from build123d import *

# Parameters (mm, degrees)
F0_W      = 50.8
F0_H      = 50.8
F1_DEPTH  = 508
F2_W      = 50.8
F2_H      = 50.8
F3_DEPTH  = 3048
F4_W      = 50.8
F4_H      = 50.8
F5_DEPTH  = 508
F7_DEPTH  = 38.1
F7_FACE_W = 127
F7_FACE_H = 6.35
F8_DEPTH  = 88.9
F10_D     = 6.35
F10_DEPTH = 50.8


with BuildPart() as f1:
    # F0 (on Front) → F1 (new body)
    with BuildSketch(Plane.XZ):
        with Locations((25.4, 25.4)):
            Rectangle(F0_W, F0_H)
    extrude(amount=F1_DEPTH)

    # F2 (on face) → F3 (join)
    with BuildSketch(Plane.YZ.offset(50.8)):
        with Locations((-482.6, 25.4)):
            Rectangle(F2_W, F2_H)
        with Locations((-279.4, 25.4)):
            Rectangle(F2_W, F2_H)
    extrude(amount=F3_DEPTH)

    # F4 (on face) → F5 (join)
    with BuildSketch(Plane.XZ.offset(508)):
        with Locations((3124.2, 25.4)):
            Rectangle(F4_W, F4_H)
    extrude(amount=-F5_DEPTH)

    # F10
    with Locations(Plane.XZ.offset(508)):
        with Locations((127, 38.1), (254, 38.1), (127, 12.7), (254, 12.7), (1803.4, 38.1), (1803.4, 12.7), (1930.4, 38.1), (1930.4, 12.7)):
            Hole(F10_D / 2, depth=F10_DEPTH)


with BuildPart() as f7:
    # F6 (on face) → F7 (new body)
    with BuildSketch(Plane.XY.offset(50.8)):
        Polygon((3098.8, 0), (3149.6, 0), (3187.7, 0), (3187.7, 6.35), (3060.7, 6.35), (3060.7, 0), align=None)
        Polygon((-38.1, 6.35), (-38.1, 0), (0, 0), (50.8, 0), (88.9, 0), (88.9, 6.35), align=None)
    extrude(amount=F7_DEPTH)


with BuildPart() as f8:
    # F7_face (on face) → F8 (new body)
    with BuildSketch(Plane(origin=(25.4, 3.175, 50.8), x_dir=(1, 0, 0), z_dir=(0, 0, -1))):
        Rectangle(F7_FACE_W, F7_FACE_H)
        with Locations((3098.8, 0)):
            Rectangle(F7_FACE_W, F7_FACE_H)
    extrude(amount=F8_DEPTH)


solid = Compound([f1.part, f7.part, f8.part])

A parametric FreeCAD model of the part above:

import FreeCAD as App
import Part
import Sketcher
Q = App.Units.Quantity


def add_polygon(sketch, points):
    """Adds a closed chain of lines whose ends are joined by coincident constraints."""
    first, n = sketch.GeometryCount, len(points)
    for a, b in zip(points, points[1:] + points[:1]):
        sketch.addGeometry(Part.LineSegment(App.Vector(*a, 0), App.Vector(*b, 0)), False)
    for i in range(n):
        sketch.addConstraint(Sketcher.Constraint("Coincident", first + i, 2, first + (i + 1) % n, 1))

doc = App.newDocument("Part")
body = doc.addObject("PartDesign::Body", "Body")

# Sketch on XZ plane
sketch1 = body.newObject("Sketcher::SketchObject", "Sketch")
sketch1.AttachmentSupport = (doc.getObject("XZ_Plane"), [""])
sketch1.MapMode = "FlatFace"
add_polygon(sketch1, [(0, 50.8), (0, 0), (50.8, 0), (50.8, 50.8)])  # lines 0-3
sketch1.addConstraint(Sketcher.Constraint("Vertical", 0))
sketch1.addConstraint(Sketcher.Constraint("Horizontal", 1))
sketch1.addConstraint(Sketcher.Constraint("Vertical", 2))
sketch1.addConstraint(Sketcher.Constraint("Horizontal", 3))
sketch1.addConstraint(Sketcher.Constraint("Coincident", 0, 2, -1, 1))
sketch1.addConstraint(Sketcher.Constraint("Equal", 3, 0))
sketch1.addConstraint(Sketcher.Constraint("DistanceX", 1, 1, 1, 2, Q("2 in")))
pad1 = body.newObject("PartDesign::Pad", "Pad")
pad1.Profile = sketch1
pad1.Length = Q("20 in")

# Sketch on YZ plane
sketch2 = body.newObject("Sketcher::SketchObject", "Sketch001")
sketch2.AttachmentSupport = (doc.getObject("YZ_Plane"), [""])
sketch2.MapMode = "FlatFace"
sketch2.AttachmentOffset = App.Placement(App.Vector(0, 0, 2 * 25.4), App.Rotation())
add_polygon(sketch2, [(-508, 50.8), (-508, 0), (-457.2, 0), (-457.2, 50.8)])  # lines 0-3
add_polygon(sketch2, [(-304.8, 50.8), (-304.8, 0), (-254, 0), (-254, 50.8)])  # lines 4-7
sketch2.addConstraint(Sketcher.Constraint("Vertical", 0))
sketch2.addConstraint(Sketcher.Constraint("Horizontal", 1))
sketch2.addConstraint(Sketcher.Constraint("Vertical", 2))
sketch2.addConstraint(Sketcher.Constraint("Horizontal", 3))
sketch2.addConstraint(Sketcher.Constraint("Vertical", 4))
sketch2.addConstraint(Sketcher.Constraint("Horizontal", 5))
sketch2.addConstraint(Sketcher.Constraint("Vertical", 6))
sketch2.addConstraint(Sketcher.Constraint("Horizontal", 7))
sketch2.addConstraint(Sketcher.Constraint("PointOnObject", 0, 2, -1))
sketch2.addConstraint(Sketcher.Constraint("PointOnObject", 4, 2, -1))
sketch2.addConstraint(Sketcher.Constraint("Horizontal", 3, 2, 6, 2))
sketch2.addConstraint(Sketcher.Constraint("Equal", 3, 5))
sketch2.addConstraint(Sketcher.Constraint("Equal", 7, 0))
sketch2.addConstraint(Sketcher.Constraint("DistanceX", 1, 1, 1, 2, Q("2 in")))
sketch2.addConstraint(Sketcher.Constraint("DistanceX", 0, 2, -1, 1, Q("20 in")))
sketch2.addConstraint(Sketcher.Constraint("DistanceX", 4, 2, -1, 1, Q("12 in")))
pad2 = body.newObject("PartDesign::Pad", "Pad001")
pad2.Profile = sketch2
pad2.Length = Q("120 in")

# Sketch on XZ plane
sketch3 = body.newObject("Sketcher::SketchObject", "Sketch002")
sketch3.AttachmentSupport = (doc.getObject("XZ_Plane"), [""])
sketch3.MapMode = "FlatFace"
sketch3.AttachmentOffset = App.Placement(App.Vector(0, 0, 20 * 25.4), App.Rotation())
add_polygon(sketch3, [(3098.8, 50.8), (3098.8, 0), (3149.6, 0), (3149.6, 50.8)])  # lines 0-3
sketch3.addConstraint(Sketcher.Constraint("Vertical", 0))
sketch3.addConstraint(Sketcher.Constraint("Horizontal", 1))
sketch3.addConstraint(Sketcher.Constraint("Vertical", 2))
sketch3.addConstraint(Sketcher.Constraint("Horizontal", 3))
sketch3.addConstraint(Sketcher.Constraint("PointOnObject", 0, 2, -1))
sketch3.addConstraint(Sketcher.Constraint("Equal", 3, 0))
sketch3.addConstraint(Sketcher.Constraint("DistanceX", 1, 1, 1, 2, Q("2 in")))
sketch3.addConstraint(Sketcher.Constraint("DistanceX", -1, 1, 0, 2, Q("122 in")))
pad3 = body.newObject("PartDesign::Pad", "Pad002")
pad3.Profile = sketch3
pad3.Length = Q("20 in")
pad3.Reversed = True

# Sketch on XZ plane
sketch4 = body.newObject("Sketcher::SketchObject", "Sketch003")
sketch4.AttachmentSupport = (doc.getObject("XZ_Plane"), [""])
sketch4.MapMode = "FlatFace"
sketch4.AttachmentOffset = App.Placement(App.Vector(0, 0, 20 * 25.4), App.Rotation())
sketch4.addGeometry(Part.Circle(App.Vector(127, 38.1, 0), App.Vector(0, 0, 1), 3.175), False)
sketch4.addGeometry(Part.Circle(App.Vector(254, 38.1, 0), App.Vector(0, 0, 1), 3.175), False)
sketch4.addGeometry(Part.Circle(App.Vector(127, 12.7, 0), App.Vector(0, 0, 1), 3.175), False)
sketch4.addGeometry(Part.Circle(App.Vector(254, 12.7, 0), App.Vector(0, 0, 1), 3.175), False)
sketch4.addGeometry(Part.Circle(App.Vector(1803.4, 38.1, 0), App.Vector(0, 0, 1), 3.175), False)
sketch4.addGeometry(Part.Circle(App.Vector(1803.4, 12.7, 0), App.Vector(0, 0, 1), 3.175), False)
sketch4.addGeometry(Part.Circle(App.Vector(1930.4, 38.1, 0), App.Vector(0, 0, 1), 3.175), False)
sketch4.addGeometry(Part.Circle(App.Vector(1930.4, 12.7, 0), App.Vector(0, 0, 1), 3.175), False)
sketch4.addConstraint(Sketcher.Constraint("Equal", 0, 1))
sketch4.addConstraint(Sketcher.Constraint("Equal", 1, 2))
sketch4.addConstraint(Sketcher.Constraint("Equal", 2, 3))
sketch4.addConstraint(Sketcher.Constraint("Equal", 3, 4))
sketch4.addConstraint(Sketcher.Constraint("Equal", 4, 5))
sketch4.addConstraint(Sketcher.Constraint("Equal", 5, 6))
sketch4.addConstraint(Sketcher.Constraint("Equal", 6, 7))
sketch4.addConstraint(Sketcher.Constraint("Horizontal", 0, 3, 1, 3))
sketch4.addConstraint(Sketcher.Constraint("Horizontal", 2, 3, 3, 3))
sketch4.addConstraint(Sketcher.Constraint("Horizontal", 1, 3, 4, 3))
sketch4.addConstraint(Sketcher.Constraint("Horizontal", 3, 3, 5, 3))
sketch4.addConstraint(Sketcher.Constraint("Horizontal", 4, 3, 6, 3))
sketch4.addConstraint(Sketcher.Constraint("Horizontal", 5, 3, 7, 3))
sketch4.addConstraint(Sketcher.Constraint("Vertical", 0, 3, 2, 3))
sketch4.addConstraint(Sketcher.Constraint("Vertical", 1, 3, 3, 3))
sketch4.addConstraint(Sketcher.Constraint("Vertical", 4, 3, 5, 3))
sketch4.addConstraint(Sketcher.Constraint("Vertical", 6, 3, 7, 3))
sketch4.addConstraint(Sketcher.Constraint("Diameter", 0, Q("0.25 in")))
sketch4.addConstraint(Sketcher.Constraint("DistanceX", -1, 1, 0, 3, Q("5 in")))
sketch4.addConstraint(Sketcher.Constraint("DistanceX", -1, 1, 1, 3, Q("10 in")))
sketch4.addConstraint(Sketcher.Constraint("DistanceX", -1, 1, 4, 3, Q("71 in")))
sketch4.addConstraint(Sketcher.Constraint("DistanceX", -1, 1, 6, 3, Q("76 in")))
sketch4.addConstraint(Sketcher.Constraint("DistanceY", 2, 3, 0, 3, Q("1 in")))
sketch4.addConstraint(Sketcher.Constraint("DistanceY", -1, 1, 0, 3, Q("1.5 in")))
doc.recompute()
hole = body.newObject("PartDesign::Hole", "Hole")
hole.Profile = sketch4
hole.ThreadType = "None"
hole.Diameter = Q("0.25 in")
hole.DepthType = "Dimension"
hole.Depth = Q("2 in")
hole.DrillPoint = "Flat"
body2 = doc.addObject("PartDesign::Body", "Body001")
body2.AllowCompound = True

# Sketch on XY plane
sketch5 = body2.newObject("Sketcher::SketchObject", "Sketch004")
sketch5.AttachmentSupport = (doc.getObject("XY_Plane001"), [""])
sketch5.MapMode = "FlatFace"
sketch5.AttachmentOffset = App.Placement(App.Vector(0, 0, 2 * 25.4), App.Rotation())
add_polygon(sketch5, [(3187.7, 0), (3187.7, 6.35), (3060.7, 6.35), (3060.7, 0)])  # lines 0-3
add_polygon(sketch5, [(-38.1, 6.35), (-38.1, 0), (88.9, 0), (88.9, 6.35)])  # lines 4-7
sketch5.addConstraint(Sketcher.Constraint("Vertical", 0))
sketch5.addConstraint(Sketcher.Constraint("Horizontal", 1))
sketch5.addConstraint(Sketcher.Constraint("Vertical", 2))
sketch5.addConstraint(Sketcher.Constraint("Horizontal", 3))
sketch5.addConstraint(Sketcher.Constraint("Vertical", 4))
sketch5.addConstraint(Sketcher.Constraint("Horizontal", 5))
sketch5.addConstraint(Sketcher.Constraint("Vertical", 6))
sketch5.addConstraint(Sketcher.Constraint("Horizontal", 7))
sketch5.addConstraint(Sketcher.Constraint("PointOnObject", 2, 2, -1))
sketch5.addConstraint(Sketcher.Constraint("PointOnObject", 4, 2, -1))
sketch5.addConstraint(Sketcher.Constraint("Horizontal", 1, 2, 6, 2))
sketch5.addConstraint(Sketcher.Constraint("Equal", 3, 5))
sketch5.addConstraint(Sketcher.Constraint("DistanceX", 1, 2, 1, 1, Q("5 in")))
sketch5.addConstraint(Sketcher.Constraint("DistanceX", 4, 2, 2, 2, Q("122 in")))
sketch5.addConstraint(Sketcher.Constraint("DistanceY", 0, 1, 0, 2, Q("0.25 in")))
sketch5.addConstraint(Sketcher.Constraint("DistanceX", -1, 1, 0, 2, Q("125.5 in")))
pad4 = body2.newObject("PartDesign::Pad", "Pad003")
pad4.Profile = sketch5
pad4.Length = Q("1.5 in")
body3 = doc.addObject("PartDesign::Body", "Body002")
body3.AllowCompound = True

# Sketch on XY plane
sketch6 = body3.newObject("Sketcher::SketchObject", "Sketch005")
sketch6.AttachmentSupport = (doc.getObject("XY_Plane002"), [""])
sketch6.MapMode = "FlatFace"
sketch6.AttachmentOffset = App.Placement(App.Vector(0, 0, 2 * 25.4), App.Rotation())
add_polygon(sketch6, [(-38.1, 0), (-38.1, 6.35), (88.9, 6.35), (88.9, 0)])  # lines 0-3
add_polygon(sketch6, [(3060.7, 0), (3060.7, 6.35), (3187.7, 6.35), (3187.7, 0)])  # lines 4-7
sketch6.addConstraint(Sketcher.Constraint("Vertical", 0))
sketch6.addConstraint(Sketcher.Constraint("Horizontal", 1))
sketch6.addConstraint(Sketcher.Constraint("Vertical", 2))
sketch6.addConstraint(Sketcher.Constraint("Horizontal", 3))
sketch6.addConstraint(Sketcher.Constraint("Vertical", 4))
sketch6.addConstraint(Sketcher.Constraint("Horizontal", 5))
sketch6.addConstraint(Sketcher.Constraint("Vertical", 6))
sketch6.addConstraint(Sketcher.Constraint("Horizontal", 7))
sketch6.addConstraint(Sketcher.Constraint("PointOnObject", 2, 2, -1))
sketch6.addConstraint(Sketcher.Constraint("PointOnObject", 6, 2, -1))
sketch6.addConstraint(Sketcher.Constraint("Horizontal", 1, 2, 4, 2))
sketch6.addConstraint(Sketcher.Constraint("Equal", 3, 5))
sketch6.addConstraint(Sketcher.Constraint("DistanceX", 1, 1, 1, 2, Q("5 in")))
sketch6.addConstraint(Sketcher.Constraint("DistanceX", 1, 2, 4, 2, Q("117 in")))
sketch6.addConstraint(Sketcher.Constraint("DistanceY", 0, 1, 0, 2, Q("0.25 in")))
sketch6.addConstraint(Sketcher.Constraint("DistanceX", 0, 2, -1, 1, Q("1.5 in")))
pad5 = body3.newObject("PartDesign::Pad", "Pad004")
pad5.Profile = sketch6
pad5.Length = Q("3.5 in")
pad5.Reversed = True

doc.recompute()
